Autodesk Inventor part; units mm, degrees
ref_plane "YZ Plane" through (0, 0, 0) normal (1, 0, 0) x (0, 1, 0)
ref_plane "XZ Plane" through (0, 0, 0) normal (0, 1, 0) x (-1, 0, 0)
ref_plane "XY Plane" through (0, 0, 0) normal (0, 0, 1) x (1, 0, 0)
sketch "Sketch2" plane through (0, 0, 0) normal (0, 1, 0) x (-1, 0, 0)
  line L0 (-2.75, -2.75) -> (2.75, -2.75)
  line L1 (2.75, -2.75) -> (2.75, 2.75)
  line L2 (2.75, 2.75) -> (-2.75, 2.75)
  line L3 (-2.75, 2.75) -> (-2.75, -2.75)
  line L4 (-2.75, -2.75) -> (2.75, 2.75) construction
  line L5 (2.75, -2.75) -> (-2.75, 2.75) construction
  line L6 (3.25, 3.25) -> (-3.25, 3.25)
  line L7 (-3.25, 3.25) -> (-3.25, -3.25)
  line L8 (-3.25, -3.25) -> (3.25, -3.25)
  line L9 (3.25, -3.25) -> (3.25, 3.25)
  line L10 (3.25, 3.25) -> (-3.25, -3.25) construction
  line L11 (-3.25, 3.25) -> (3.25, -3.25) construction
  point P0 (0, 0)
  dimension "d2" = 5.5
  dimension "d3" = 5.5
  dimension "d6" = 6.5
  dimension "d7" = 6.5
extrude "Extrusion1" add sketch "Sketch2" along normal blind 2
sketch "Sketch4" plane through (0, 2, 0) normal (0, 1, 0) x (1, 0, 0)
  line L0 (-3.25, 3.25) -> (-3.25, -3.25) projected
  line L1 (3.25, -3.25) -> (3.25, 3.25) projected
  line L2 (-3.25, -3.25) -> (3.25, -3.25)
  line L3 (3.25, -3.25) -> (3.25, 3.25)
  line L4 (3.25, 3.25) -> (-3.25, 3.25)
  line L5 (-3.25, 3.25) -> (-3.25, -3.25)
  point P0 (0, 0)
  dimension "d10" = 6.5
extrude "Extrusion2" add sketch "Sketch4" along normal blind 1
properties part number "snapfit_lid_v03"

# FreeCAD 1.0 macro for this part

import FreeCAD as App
import Part
import Sketcher

V = App.Vector


def add_polygon(sketch, points):
    """Adds a closed chain of lines whose ends are joined by coincident constraints."""
    first, n = sketch.GeometryCount, len(points)
    for a, b in zip(points, points[1:] + points[:1]):
        sketch.addGeometry(Part.LineSegment(App.Vector(*a, 0), App.Vector(*b, 0)), False)
    for i in range(n):
        sketch.addConstraint(Sketcher.Constraint("Coincident", first + i, 2, first + (i + 1) % n, 1))

doc = App.newDocument("Part")
body = doc.addObject("PartDesign::Body", "Body")

# Sketch on XZ plane
sketch1 = doc.addObject("Sketcher::SketchObject", "Sketch")
body.addObject(sketch1)
sketch1.AttachmentSupport = (doc.XZ_Plane, [""])
sketch1.MapMode = "FlatFace"
add_polygon(sketch1, [(-3, -3), (-3, 3), (3, 3), (3, -3)])  # lines 0-3
add_polygon(sketch1, [(-3, -3), (3, -3), (3, 3), (-3, 3)])  # lines 4-7
sketch1.addConstraint([
    Sketcher.Constraint("Vertical", 0),
    Sketcher.Constraint("Horizontal", 1),
    Sketcher.Constraint("Vertical", 2),
    Sketcher.Constraint("Horizontal", 3),
    Sketcher.Constraint("Horizontal", 4),
    Sketcher.Constraint("Vertical", 5),
    Sketcher.Constraint("Horizontal", 6),
    Sketcher.Constraint("Vertical", 7),
    Sketcher.Constraint("Symmetric", 0, 2, 2, 2, -1, 1),
    Sketcher.Constraint("Symmetric", 4, 2, 6, 2, -1, 1),
    Sketcher.Constraint("Equal", 3, 0),
    Sketcher.Constraint("Equal", 6, 5),
    Sketcher.Constraint("DistanceX", 1, 1, 1, 2, 6.5),
    Sketcher.Constraint("DistanceX", 4, 1, 4, 2, 5.5),
])
pad1 = doc.addObject("PartDesign::Pad", "Pad")
body.addObject(pad1)
pad1.Profile = sketch1
pad1.Length = 2
pad1.Reversed = True

# Sketch on XZ plane
sketch2 = doc.addObject("Sketcher::SketchObject", "Sketch001")
body.addObject(sketch2)
sketch2.AttachmentSupport = (doc.XZ_Plane, [""])
sketch2.MapMode = "FlatFace"
sketch2.AttachmentOffset = App.Placement(V(0, 0, -2), App.Rotation())
add_polygon(sketch2, [(3, -3), (-3, -3), (-3, 3), (3, 3)])  # lines 0-3
sketch2.addConstraint([
    Sketcher.Constraint("Horizontal", 0),
    Sketcher.Constraint("Vertical", 1),
    Sketcher.Constraint("Horizontal", 2),
    Sketcher.Constraint("Vertical", 3),
    Sketcher.Constraint("Symmetric", 0, 2, 2, 2, -1, 1),
    Sketcher.Constraint("Equal", 2, 1),
    Sketcher.Constraint("DistanceX", 0, 2, 0, 1, 6.5),
])
pad2 = doc.addObject("PartDesign::Pad", "Pad001")
body.addObject(pad2)
pad2.Profile = sketch2
pad2.Length = 1
pad2.Reversed = True

doc.recompute()
